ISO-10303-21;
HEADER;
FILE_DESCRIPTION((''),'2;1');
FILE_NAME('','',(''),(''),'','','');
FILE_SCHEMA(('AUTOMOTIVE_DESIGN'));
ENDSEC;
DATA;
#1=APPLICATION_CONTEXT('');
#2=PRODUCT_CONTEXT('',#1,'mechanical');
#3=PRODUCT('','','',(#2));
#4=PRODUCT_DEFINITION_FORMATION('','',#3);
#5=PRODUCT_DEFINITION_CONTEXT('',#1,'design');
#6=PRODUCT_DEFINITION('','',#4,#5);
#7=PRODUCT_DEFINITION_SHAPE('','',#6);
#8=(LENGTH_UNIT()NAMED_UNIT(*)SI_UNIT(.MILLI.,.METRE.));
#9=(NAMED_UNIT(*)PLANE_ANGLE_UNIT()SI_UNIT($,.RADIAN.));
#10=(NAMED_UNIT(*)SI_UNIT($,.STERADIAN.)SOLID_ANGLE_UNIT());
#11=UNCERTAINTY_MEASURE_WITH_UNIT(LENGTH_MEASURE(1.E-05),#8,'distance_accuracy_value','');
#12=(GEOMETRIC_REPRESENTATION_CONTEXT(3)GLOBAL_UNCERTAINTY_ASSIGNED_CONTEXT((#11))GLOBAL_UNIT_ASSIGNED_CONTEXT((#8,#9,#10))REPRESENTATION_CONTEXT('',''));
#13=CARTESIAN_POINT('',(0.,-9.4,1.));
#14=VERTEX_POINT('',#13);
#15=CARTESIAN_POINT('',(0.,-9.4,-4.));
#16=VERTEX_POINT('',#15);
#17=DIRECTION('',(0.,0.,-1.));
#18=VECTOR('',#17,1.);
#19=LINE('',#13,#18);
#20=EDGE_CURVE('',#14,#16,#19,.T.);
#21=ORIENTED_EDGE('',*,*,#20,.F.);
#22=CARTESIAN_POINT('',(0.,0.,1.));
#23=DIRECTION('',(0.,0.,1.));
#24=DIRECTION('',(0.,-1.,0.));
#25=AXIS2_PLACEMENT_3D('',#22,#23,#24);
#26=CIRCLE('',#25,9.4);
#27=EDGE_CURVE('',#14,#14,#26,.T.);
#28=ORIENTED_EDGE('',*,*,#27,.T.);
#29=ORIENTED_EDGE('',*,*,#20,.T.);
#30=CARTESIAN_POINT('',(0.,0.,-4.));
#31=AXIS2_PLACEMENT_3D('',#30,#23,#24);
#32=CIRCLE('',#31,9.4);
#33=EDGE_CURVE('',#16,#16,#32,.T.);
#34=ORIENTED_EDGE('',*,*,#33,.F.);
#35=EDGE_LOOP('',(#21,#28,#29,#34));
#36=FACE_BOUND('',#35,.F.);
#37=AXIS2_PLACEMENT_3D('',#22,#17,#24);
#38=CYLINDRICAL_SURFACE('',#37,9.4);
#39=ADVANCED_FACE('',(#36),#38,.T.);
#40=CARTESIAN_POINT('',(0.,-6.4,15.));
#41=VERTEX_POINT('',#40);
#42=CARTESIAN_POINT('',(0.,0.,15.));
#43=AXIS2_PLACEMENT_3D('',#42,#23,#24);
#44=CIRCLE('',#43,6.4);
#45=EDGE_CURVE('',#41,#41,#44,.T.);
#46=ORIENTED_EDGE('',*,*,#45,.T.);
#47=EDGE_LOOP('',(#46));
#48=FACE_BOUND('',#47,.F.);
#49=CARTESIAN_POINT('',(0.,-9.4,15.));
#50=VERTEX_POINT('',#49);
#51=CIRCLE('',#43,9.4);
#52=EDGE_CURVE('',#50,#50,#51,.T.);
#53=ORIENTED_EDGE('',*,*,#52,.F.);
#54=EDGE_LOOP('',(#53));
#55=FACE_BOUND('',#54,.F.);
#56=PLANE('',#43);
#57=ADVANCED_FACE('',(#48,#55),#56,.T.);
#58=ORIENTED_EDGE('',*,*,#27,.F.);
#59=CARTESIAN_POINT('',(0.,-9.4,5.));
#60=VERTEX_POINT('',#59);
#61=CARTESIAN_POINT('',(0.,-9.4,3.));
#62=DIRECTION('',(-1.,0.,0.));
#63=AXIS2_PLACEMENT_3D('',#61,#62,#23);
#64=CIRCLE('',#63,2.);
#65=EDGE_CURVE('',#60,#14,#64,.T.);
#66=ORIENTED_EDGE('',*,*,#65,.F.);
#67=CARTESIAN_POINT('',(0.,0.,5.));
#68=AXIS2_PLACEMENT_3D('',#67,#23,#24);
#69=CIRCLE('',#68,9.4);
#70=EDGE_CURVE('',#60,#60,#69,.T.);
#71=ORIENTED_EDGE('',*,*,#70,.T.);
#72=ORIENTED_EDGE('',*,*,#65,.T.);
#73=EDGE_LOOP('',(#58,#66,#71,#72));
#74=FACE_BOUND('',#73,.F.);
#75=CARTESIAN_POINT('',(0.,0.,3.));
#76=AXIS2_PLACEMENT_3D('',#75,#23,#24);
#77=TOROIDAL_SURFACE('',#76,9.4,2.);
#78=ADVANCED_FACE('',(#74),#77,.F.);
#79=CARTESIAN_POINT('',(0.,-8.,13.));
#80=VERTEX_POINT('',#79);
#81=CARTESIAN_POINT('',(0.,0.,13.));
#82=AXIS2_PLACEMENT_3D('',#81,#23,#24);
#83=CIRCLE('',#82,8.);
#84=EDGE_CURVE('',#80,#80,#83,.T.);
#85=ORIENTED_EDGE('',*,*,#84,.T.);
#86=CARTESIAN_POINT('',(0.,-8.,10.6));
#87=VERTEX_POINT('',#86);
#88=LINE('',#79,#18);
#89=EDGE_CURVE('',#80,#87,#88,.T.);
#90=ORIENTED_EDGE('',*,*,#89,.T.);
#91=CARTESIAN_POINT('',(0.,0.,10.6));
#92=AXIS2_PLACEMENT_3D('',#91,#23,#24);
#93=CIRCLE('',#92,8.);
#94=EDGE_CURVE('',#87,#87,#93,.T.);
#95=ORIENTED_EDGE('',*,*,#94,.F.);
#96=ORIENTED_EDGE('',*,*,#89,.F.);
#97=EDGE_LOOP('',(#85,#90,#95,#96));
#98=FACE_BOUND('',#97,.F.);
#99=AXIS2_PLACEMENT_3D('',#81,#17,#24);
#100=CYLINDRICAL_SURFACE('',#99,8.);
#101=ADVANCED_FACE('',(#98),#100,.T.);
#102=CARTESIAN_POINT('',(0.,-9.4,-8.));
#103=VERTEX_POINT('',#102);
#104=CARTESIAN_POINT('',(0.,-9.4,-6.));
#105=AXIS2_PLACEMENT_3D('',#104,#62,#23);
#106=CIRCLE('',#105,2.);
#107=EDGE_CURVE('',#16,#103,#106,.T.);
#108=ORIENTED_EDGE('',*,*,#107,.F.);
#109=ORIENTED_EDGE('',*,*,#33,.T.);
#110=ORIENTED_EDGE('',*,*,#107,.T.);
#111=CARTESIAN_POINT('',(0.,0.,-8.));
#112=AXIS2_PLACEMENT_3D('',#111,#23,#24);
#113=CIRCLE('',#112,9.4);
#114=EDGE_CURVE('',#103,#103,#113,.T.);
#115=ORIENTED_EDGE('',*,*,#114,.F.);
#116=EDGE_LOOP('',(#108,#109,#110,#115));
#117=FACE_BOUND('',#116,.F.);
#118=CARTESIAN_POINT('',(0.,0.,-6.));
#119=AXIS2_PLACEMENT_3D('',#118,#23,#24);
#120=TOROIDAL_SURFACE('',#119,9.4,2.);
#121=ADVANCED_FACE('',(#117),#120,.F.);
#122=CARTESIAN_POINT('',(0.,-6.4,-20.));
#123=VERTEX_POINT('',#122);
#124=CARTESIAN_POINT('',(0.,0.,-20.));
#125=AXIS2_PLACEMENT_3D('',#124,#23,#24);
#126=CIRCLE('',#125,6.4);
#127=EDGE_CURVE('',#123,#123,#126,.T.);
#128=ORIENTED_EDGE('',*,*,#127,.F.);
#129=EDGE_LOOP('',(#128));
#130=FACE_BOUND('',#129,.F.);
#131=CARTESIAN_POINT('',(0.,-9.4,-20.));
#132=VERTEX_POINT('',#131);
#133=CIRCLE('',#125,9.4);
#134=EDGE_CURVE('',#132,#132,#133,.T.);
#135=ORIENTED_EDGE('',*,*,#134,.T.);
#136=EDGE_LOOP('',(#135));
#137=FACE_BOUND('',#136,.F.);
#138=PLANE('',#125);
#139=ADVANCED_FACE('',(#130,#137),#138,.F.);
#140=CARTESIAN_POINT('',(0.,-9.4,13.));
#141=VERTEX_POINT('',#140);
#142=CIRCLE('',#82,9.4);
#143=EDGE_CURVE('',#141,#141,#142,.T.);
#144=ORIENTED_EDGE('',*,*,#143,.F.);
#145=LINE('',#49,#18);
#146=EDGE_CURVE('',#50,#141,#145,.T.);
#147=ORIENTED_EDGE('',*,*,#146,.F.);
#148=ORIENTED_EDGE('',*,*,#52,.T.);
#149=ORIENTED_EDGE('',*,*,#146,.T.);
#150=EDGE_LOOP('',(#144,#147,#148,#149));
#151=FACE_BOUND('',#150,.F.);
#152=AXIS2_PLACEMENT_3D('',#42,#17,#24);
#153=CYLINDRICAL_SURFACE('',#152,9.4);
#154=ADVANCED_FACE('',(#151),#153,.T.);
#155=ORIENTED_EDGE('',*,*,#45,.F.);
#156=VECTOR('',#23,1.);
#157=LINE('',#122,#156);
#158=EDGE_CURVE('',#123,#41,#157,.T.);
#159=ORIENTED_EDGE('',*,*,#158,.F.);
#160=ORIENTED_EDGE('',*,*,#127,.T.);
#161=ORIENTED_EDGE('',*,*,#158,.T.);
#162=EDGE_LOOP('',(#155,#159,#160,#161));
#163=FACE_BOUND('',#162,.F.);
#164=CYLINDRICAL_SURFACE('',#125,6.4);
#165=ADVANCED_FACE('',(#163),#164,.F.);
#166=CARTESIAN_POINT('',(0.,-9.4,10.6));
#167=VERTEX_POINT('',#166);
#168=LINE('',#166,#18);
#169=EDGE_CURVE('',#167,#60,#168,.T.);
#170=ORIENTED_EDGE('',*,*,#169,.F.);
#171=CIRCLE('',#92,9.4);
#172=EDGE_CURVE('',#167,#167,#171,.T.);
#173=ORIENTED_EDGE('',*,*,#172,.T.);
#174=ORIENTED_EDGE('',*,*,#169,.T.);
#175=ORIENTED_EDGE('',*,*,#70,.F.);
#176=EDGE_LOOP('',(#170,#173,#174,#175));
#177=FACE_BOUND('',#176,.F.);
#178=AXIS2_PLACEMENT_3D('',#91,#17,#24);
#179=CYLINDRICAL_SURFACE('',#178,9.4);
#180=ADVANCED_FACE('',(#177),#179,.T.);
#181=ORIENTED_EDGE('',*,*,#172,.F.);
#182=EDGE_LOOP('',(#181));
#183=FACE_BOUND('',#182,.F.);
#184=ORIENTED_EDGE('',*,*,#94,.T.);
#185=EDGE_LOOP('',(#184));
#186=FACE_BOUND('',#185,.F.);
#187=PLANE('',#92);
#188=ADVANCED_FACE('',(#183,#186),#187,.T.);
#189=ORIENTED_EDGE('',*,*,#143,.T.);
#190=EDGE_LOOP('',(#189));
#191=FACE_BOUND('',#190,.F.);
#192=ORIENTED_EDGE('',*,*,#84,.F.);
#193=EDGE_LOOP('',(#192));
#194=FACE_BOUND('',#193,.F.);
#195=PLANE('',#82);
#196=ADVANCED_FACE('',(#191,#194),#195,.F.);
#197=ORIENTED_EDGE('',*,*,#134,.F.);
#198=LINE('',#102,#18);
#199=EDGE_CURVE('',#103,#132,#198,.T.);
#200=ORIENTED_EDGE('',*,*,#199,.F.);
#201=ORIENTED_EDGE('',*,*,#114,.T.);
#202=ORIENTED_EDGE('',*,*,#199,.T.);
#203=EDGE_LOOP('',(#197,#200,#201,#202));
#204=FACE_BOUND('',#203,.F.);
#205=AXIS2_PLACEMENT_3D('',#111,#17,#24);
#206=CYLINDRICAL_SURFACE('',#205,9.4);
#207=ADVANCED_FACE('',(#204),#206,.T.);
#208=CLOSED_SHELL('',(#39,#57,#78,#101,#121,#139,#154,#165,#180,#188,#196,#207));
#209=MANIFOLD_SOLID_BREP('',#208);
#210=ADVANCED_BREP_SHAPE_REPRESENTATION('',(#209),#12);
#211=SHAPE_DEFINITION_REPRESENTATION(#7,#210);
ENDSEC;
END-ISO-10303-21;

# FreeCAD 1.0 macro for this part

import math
import FreeCAD as App
import Part
import Sketcher

V = App.Vector
Q = App.Units.Quantity

doc = App.newDocument("Part")
body = doc.addObject("PartDesign::Body", "Body")

sketch1 = body.newObject("Sketcher::SketchObject", "Sketch")
sketch1.AttachmentSupport = (doc.getObject("YZ_Plane"), [""])
sketch1.MapMode = "FlatFace"
sketch1.addGeometry([
    Part.LineSegment(V(-6.4, -20, 0), V(-6.4, 15, 0)),
    Part.LineSegment(V(-6.4, 15, 0), V(-9.4, 15, 0)),
    Part.LineSegment(V(-9.4, 15, 0), V(-9.4, 13, 0)),
    Part.LineSegment(V(-9.4, 13, 0), V(-8, 13, 0)),
    Part.LineSegment(V(-8, 13, 0), V(-8, 10.6, 0)),
    Part.LineSegment(V(-8, 10.6, 0), V(-9.4, 10.6, 0)),
    Part.LineSegment(V(-9.4, 10.6, 0), V(-9.4, 5, 0)),
    Part.ArcOfCircle(Part.Circle(V(-9.4, 3, 0), V(0, 0, 1), 2), math.radians(-90), math.radians(90)),
    Part.LineSegment(V(-9.4, 1, 0), V(-9.4, -4, 0)),
    Part.ArcOfCircle(Part.Circle(V(-9.4, -6, 0), V(0, 0, 1), 2), math.radians(-90), math.radians(90)),
    Part.LineSegment(V(-9.4, -8, 0), V(-9.4, -20, 0)),
    Part.LineSegment(V(-9.4, -20, 0), V(-6.4, -20, 0)),
], False)
sketch1.addConstraint([
    Sketcher.Constraint("Coincident", 0, 2, 1, 1),
    Sketcher.Constraint("Coincident", 1, 2, 2, 1),
    Sketcher.Constraint("Coincident", 2, 2, 3, 1),
    Sketcher.Constraint("Coincident", 3, 2, 4, 1),
    Sketcher.Constraint("Coincident", 4, 2, 5, 1),
    Sketcher.Constraint("Coincident", 5, 2, 6, 1),
    Sketcher.Constraint("Coincident", 6, 2, 7, 2),
    Sketcher.Constraint("Coincident", 7, 1, 8, 1),
    Sketcher.Constraint("Coincident", 8, 2, 9, 2),
    Sketcher.Constraint("Coincident", 9, 1, 10, 1),
    Sketcher.Constraint("Coincident", 10, 2, 11, 1),
    Sketcher.Constraint("Coincident", 11, 2, 0, 1),
    Sketcher.Constraint("Vertical", 0),
    Sketcher.Constraint("Horizontal", 1),
    Sketcher.Constraint("Vertical", 2),
    Sketcher.Constraint("Horizontal", 3),
    Sketcher.Constraint("Vertical", 4),
    Sketcher.Constraint("Horizontal", 5),
    Sketcher.Constraint("Vertical", 6),
    Sketcher.Constraint("Vertical", 8),
    Sketcher.Constraint("Vertical", 10),
    Sketcher.Constraint("Horizontal", 11),
    Sketcher.Constraint("Equal", 7, 9),
    Sketcher.Constraint("Vertical", 7, 3, 9, 3),
    Sketcher.Constraint("Vertical", 9, 3, 1, 2),
    Sketcher.Constraint("Vertical", 2, 2, 5, 2),
    Sketcher.Constraint("Vertical", 6, 2, 7, 1),
    Sketcher.Constraint("Vertical", 8, 2, 9, 1),
    Sketcher.Constraint("Radius", 7, Q("2 mm")),
    Sketcher.Constraint("DistanceX", 1, 2, 1, 1, Q("3 mm")),
    Sketcher.Constraint("DistanceY", 0, 1, 0, 2, Q("35 mm")),
    Sketcher.Constraint("DistanceY", 2, 2, 2, 1, Q("2 mm")),
    Sketcher.Constraint("DistanceY", 8, 2, 8, 1, Q("5 mm")),
    Sketcher.Constraint("DistanceY", 10, 2, 10, 1, Q("12 mm")),
    Sketcher.Constraint("DistanceX", 3, 1, 3, 2, Q("1.4 mm")),
    Sketcher.Constraint("DistanceY", 4, 2, 4, 1, Q("2.4 mm")),
    Sketcher.Constraint("DistanceY", -1, 1, 7, 3, Q("3 mm")),
    Sketcher.Constraint("DistanceX", 3, 2, -1, 1, Q("8 mm")),
])
revolution = body.newObject("PartDesign::Revolution", "Revolution")
revolution.Profile = sketch1
revolution.ReferenceAxis = (sketch1, ["V_Axis"])
revolution.Angle = 360

doc.recompute()
